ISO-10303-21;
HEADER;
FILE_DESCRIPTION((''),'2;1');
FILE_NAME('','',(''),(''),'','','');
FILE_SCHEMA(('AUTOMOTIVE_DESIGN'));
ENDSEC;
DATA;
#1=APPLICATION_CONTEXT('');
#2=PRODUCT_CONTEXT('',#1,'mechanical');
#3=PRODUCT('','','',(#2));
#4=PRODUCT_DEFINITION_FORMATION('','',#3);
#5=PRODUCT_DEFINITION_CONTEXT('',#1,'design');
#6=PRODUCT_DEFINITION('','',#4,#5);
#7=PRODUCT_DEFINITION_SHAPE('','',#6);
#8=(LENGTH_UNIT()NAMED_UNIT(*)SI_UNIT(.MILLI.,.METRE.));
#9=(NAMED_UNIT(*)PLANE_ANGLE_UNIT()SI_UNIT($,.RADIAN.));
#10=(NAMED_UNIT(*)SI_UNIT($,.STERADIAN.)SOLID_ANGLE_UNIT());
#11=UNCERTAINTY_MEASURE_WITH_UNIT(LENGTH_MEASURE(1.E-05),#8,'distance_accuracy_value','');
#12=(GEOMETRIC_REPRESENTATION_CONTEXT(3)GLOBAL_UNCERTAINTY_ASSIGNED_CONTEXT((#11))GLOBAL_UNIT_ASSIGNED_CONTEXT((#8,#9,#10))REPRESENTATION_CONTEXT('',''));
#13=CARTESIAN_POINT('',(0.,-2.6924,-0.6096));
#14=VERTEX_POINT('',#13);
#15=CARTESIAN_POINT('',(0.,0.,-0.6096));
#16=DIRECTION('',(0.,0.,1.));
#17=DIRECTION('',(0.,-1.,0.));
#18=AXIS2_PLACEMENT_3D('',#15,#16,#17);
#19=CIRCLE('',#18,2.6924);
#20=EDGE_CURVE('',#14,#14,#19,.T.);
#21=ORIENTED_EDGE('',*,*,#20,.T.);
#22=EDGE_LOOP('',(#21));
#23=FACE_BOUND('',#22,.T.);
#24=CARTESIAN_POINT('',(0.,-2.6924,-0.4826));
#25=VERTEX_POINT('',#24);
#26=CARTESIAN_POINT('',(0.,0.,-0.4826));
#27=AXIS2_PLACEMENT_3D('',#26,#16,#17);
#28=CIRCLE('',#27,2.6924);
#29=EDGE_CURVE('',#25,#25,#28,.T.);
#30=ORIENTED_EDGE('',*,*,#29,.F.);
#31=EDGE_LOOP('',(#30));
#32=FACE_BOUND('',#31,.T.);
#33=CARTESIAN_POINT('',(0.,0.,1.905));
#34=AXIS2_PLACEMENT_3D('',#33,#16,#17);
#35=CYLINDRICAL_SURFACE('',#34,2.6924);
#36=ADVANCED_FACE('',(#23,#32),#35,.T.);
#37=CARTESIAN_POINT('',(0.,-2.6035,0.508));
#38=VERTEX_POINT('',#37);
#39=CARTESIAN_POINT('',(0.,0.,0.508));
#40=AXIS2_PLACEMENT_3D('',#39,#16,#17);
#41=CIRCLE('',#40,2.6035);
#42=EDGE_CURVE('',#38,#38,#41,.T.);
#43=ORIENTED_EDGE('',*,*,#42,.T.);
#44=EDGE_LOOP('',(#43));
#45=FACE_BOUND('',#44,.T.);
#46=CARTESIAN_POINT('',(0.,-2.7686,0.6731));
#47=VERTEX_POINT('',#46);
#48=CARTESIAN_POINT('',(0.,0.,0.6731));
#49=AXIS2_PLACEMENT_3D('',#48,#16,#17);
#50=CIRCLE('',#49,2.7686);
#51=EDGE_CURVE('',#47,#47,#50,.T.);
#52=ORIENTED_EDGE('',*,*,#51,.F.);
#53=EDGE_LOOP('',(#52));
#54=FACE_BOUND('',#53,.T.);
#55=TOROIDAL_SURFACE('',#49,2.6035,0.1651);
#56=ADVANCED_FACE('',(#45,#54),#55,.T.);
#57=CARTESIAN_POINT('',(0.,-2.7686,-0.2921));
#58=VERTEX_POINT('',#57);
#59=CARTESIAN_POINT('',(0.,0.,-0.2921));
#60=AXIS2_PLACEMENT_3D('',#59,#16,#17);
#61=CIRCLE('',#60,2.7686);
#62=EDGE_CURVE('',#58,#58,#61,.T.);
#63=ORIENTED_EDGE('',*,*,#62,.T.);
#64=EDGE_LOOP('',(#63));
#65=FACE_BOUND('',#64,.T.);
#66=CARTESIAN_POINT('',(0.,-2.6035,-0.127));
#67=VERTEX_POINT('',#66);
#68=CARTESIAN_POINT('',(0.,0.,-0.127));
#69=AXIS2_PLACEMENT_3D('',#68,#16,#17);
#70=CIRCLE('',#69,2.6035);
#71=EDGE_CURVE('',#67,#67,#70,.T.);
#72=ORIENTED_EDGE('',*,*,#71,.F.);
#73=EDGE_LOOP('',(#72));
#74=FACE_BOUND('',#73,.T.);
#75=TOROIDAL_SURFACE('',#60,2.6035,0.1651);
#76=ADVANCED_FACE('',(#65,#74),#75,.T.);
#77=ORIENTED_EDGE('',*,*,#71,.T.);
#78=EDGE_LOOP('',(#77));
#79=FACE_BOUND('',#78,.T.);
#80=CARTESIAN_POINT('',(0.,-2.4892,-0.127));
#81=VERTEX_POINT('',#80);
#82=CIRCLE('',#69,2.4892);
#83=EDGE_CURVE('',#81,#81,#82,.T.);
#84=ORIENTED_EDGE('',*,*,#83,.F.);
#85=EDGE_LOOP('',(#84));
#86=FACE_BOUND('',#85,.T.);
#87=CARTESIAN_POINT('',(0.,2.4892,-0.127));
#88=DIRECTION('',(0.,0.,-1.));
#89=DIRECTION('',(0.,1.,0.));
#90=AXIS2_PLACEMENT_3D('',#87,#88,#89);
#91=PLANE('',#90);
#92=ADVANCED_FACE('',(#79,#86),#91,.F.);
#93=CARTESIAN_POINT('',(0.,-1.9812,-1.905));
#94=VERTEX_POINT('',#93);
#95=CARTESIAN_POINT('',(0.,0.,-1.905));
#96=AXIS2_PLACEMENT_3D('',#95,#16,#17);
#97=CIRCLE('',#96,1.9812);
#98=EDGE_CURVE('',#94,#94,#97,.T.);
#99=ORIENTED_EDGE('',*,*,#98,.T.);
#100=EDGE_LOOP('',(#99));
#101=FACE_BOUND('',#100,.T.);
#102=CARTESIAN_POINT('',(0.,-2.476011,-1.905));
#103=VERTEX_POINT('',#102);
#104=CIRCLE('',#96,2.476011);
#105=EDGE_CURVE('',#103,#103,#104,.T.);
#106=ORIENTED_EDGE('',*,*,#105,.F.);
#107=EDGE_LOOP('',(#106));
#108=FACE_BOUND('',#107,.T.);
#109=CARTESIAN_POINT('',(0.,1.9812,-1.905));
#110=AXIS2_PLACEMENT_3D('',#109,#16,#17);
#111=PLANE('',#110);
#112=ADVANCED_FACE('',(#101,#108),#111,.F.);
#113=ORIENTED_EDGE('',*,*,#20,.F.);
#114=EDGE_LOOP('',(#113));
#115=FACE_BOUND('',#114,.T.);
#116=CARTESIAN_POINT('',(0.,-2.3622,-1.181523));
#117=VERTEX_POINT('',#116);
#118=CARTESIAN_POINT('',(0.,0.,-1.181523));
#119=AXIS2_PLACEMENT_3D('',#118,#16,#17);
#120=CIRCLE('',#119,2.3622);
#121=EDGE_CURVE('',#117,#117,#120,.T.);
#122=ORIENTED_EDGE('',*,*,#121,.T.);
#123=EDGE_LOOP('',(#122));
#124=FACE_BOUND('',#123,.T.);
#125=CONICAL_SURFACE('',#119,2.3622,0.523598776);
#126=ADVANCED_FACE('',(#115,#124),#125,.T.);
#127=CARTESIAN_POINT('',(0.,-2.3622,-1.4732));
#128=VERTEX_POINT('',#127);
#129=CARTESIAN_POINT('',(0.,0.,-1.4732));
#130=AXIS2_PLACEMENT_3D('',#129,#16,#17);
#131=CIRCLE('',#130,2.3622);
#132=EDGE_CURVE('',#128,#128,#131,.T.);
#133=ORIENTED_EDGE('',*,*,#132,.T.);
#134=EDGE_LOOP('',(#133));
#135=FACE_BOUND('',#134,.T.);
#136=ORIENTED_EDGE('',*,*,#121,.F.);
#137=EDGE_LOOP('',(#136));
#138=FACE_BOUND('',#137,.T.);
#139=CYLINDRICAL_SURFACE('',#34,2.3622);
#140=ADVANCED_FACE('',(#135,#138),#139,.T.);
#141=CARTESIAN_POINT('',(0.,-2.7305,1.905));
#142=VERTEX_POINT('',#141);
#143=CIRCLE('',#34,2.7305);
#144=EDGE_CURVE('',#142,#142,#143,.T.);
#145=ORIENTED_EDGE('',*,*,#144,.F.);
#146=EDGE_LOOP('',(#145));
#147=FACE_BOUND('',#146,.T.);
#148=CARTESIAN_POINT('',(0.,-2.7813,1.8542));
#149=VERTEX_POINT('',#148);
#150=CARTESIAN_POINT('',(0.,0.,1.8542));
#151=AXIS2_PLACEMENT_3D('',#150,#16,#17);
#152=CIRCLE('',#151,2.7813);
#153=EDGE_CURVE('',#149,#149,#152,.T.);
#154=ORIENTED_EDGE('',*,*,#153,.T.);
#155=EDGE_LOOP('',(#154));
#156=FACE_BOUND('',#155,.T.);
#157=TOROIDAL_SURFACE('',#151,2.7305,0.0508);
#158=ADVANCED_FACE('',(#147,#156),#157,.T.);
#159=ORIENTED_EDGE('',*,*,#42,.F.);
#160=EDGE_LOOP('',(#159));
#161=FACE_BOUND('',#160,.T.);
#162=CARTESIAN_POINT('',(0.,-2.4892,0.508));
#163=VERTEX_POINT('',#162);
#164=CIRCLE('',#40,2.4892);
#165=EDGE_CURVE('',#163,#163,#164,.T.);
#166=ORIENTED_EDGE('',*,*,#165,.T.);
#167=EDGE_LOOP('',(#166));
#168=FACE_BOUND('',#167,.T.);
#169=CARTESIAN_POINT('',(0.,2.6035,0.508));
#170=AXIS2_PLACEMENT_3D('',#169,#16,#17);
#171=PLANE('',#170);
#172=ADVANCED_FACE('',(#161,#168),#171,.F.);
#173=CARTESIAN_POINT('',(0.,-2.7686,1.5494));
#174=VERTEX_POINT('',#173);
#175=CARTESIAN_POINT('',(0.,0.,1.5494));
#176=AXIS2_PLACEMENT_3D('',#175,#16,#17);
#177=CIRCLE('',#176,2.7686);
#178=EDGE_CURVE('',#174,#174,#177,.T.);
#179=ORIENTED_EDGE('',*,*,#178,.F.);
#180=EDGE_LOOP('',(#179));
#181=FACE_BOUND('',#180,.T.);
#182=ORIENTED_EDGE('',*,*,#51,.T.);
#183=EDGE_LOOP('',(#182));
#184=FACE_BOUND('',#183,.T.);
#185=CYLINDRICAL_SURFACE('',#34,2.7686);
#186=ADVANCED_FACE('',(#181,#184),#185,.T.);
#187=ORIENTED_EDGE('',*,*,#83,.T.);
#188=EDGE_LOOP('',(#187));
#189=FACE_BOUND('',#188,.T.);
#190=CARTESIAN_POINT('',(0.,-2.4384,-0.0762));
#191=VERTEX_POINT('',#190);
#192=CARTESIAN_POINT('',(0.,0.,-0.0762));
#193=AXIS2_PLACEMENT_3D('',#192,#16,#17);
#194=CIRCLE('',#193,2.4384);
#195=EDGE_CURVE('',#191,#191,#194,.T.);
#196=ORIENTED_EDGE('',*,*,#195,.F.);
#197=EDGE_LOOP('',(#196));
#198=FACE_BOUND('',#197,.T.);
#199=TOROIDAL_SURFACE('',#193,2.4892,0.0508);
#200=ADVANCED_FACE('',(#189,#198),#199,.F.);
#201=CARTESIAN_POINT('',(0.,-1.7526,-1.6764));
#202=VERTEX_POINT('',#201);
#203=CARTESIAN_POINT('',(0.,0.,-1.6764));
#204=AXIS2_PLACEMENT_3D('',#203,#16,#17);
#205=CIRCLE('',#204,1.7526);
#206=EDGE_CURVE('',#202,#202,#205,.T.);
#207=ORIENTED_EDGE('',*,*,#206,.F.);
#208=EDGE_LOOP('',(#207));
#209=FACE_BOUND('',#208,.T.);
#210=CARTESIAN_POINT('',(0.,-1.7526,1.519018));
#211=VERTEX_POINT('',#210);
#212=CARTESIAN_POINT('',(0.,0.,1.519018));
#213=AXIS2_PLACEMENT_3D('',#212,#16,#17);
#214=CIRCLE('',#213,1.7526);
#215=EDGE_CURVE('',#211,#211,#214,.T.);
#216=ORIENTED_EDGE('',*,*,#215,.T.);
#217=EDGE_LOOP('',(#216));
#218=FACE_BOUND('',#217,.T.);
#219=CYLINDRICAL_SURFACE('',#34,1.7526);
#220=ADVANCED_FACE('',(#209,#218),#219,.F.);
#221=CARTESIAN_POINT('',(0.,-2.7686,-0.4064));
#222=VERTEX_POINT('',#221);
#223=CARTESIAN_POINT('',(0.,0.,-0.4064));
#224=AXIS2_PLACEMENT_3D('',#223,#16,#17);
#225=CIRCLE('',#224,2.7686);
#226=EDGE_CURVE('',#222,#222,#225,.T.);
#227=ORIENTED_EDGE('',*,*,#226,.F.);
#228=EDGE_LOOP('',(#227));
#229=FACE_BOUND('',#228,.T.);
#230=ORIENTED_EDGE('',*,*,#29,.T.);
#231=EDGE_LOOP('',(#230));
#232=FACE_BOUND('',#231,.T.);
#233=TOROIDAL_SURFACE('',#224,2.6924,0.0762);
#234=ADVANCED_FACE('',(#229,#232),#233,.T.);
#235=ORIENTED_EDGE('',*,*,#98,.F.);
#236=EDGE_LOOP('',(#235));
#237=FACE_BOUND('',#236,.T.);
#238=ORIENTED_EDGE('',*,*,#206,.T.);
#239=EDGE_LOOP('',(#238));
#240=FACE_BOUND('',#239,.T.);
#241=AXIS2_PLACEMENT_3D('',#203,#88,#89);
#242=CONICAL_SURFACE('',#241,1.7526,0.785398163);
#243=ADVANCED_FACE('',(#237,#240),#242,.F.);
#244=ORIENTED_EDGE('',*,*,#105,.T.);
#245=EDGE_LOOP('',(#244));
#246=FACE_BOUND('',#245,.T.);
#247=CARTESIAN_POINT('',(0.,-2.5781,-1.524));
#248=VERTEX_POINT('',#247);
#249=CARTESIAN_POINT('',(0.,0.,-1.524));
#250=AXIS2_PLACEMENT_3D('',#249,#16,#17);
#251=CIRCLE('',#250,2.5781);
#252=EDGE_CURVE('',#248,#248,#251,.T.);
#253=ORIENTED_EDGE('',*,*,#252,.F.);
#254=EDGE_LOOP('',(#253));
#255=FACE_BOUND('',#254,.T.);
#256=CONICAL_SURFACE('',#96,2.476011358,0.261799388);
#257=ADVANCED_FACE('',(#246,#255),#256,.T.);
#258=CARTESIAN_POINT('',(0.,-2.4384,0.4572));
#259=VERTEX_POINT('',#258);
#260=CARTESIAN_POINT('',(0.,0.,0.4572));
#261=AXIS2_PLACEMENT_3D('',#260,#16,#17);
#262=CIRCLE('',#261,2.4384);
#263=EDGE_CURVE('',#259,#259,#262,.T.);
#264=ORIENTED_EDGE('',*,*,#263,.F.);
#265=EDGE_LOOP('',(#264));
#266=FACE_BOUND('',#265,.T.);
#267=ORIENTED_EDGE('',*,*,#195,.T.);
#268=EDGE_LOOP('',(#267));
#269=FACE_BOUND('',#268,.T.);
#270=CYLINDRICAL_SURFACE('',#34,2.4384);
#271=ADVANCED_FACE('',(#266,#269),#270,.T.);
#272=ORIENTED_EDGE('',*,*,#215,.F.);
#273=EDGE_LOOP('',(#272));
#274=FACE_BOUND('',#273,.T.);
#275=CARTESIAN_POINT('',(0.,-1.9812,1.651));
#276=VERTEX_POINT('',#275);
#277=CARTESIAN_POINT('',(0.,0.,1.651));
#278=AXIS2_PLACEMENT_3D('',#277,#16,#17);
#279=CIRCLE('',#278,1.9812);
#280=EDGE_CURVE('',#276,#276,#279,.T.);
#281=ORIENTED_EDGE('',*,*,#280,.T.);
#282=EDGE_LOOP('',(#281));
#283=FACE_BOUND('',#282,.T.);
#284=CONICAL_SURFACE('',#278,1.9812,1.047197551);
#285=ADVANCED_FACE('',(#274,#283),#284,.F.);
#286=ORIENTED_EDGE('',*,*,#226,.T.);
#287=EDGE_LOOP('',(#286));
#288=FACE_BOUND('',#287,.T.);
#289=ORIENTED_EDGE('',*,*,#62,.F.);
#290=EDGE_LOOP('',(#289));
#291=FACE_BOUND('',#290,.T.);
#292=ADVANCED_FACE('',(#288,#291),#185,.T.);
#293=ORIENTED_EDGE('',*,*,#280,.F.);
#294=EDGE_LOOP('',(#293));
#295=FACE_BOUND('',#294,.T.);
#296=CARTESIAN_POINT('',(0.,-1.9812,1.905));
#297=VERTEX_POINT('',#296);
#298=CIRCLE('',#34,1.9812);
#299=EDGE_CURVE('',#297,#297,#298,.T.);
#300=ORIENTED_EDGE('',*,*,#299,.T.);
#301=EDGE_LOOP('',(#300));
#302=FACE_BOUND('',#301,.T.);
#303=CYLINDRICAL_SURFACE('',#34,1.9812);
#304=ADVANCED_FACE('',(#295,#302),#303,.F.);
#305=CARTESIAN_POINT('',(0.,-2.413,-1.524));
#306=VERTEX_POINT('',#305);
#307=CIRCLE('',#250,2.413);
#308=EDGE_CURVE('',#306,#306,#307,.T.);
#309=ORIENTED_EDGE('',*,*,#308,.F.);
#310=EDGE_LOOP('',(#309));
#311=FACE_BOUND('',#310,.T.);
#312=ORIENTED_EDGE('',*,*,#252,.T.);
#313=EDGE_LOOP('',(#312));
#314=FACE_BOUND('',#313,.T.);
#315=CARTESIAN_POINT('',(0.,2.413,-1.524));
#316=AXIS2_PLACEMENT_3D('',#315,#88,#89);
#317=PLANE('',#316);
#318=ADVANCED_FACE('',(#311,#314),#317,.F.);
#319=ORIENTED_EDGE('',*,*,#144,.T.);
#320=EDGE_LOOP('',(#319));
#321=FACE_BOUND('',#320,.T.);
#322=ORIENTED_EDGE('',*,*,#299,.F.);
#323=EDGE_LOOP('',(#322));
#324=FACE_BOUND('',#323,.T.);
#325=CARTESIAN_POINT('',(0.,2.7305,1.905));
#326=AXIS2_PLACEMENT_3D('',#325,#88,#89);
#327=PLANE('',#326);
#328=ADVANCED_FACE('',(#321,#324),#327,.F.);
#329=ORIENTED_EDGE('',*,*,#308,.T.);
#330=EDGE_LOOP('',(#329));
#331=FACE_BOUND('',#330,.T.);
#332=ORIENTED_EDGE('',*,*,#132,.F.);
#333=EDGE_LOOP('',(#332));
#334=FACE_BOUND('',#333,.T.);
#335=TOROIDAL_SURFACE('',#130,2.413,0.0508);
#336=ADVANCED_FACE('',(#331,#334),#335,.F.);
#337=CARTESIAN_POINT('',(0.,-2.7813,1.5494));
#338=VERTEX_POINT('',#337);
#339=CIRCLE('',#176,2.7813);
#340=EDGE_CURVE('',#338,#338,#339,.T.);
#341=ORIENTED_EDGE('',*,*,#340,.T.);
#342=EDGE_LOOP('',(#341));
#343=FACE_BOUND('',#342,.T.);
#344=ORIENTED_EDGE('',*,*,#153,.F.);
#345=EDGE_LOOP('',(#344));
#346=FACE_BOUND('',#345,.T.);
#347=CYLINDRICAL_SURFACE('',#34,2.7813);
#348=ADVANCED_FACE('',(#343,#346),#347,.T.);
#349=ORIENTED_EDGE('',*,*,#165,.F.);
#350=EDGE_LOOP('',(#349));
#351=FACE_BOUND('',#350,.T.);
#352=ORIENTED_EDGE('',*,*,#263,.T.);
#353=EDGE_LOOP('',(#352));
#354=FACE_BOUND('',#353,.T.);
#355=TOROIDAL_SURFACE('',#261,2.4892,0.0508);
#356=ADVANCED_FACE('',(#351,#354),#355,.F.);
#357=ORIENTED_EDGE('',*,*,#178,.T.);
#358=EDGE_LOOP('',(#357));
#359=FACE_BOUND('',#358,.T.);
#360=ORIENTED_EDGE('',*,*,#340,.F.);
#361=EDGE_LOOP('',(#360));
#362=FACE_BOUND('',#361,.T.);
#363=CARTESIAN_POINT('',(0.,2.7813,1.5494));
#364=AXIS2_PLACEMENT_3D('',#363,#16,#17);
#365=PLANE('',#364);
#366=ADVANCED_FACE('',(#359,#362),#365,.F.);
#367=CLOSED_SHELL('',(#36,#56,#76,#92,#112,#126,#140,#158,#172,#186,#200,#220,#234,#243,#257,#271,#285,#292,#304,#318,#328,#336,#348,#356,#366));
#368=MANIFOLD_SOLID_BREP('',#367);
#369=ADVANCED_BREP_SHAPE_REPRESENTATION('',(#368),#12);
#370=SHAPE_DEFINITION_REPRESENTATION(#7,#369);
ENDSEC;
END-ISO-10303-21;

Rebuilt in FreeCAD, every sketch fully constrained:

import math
import FreeCAD as App
import Part
import Sketcher
from FreeCAD import Vector
Q = App.Units.Quantity

doc = App.newDocument("Part")
params = doc.addObject("Spreadsheet::Sheet", "Params")
for row, (alias, value) in enumerate([
    ("sketch1_radius", "0.003 in"),
    ("sketch1_radius2", "0.002 in"),
    ("sketch1_height", "0.01 in"),
    ("sketch1_height2", "0.005 in"),
    ("sketch1_height3", "0.021 in"),
    ("revolution_angle", "360 deg"),
], start=1):
    params.set(f"A{row}", alias)
    params.set(f"B{row}", "=" + value)
    params.setAlias(f"B{row}", alias)

body = doc.addObject("PartDesign::Body", "Body")

# Sketch on YZ plane
sketch1 = body.newObject("Sketcher::SketchObject", "Sketch")
sketch1.AttachmentSupport = (doc.getObject("YZ_Plane"), [""])
sketch1.MapMode = "FlatFace"
sketch1.addGeometry([
    Part.LineSegment(Vector(2.3622, -1.181523, 0), Vector(2.6924, -0.6096, 0)),  # 0
    Part.LineSegment(Vector(2.6924, -0.6096, 0), Vector(2.6924, -0.4826, 0)),  # 1
    Part.ArcOfCircle(Part.Circle(Vector(2.6924, -0.4064, 0), Vector(0, 0, 1), 0.0762), math.radians(-90.000001), math.radians(0.000001)),  # 2
    Part.LineSegment(Vector(2.7686, -0.4064, 0), Vector(2.7686, -0.2921, 0)),  # 3
    Part.ArcOfCircle(Part.Circle(Vector(2.6035, -0.2921, 0), Vector(0, 0, 1), 0.1651), math.radians(0), math.radians(90)),  # 4
    Part.LineSegment(Vector(2.6035, -0.127, 0), Vector(2.4892, -0.127, 0)),  # 5
    Part.ArcOfCircle(Part.Circle(Vector(2.4892, -0.0762, 0), Vector(0, 0, 1), 0.0508), math.radians(-179.999998), math.radians(-90.000002)),  # 6
    Part.LineSegment(Vector(2.4384, -0.0762, 0), Vector(2.4384, 0.4572, 0)),  # 7
    Part.ArcOfCircle(Part.Circle(Vector(2.4892, 0.4572, 0), Vector(0, 0, 1), 0.0508), math.radians(90.000002), math.radians(179.999998)),  # 8
    Part.LineSegment(Vector(2.4892, 0.508, 0), Vector(2.6035, 0.508, 0)),  # 9
    Part.ArcOfCircle(Part.Circle(Vector(2.6035, 0.6731, 0), Vector(0, 0, 1), 0.1651), math.radians(-90), math.radians(0)),  # 10
    Part.LineSegment(Vector(2.7686, 0.6731, 0), Vector(2.7686, 1.5494, 0)),  # 11
    Part.LineSegment(Vector(2.7686, 1.5494, 0), Vector(2.7813, 1.5494, 0)),  # 12
    Part.LineSegment(Vector(2.7813, 1.5494, 0), Vector(2.7813, 1.8542, 0)),  # 13
    Part.ArcOfCircle(Part.Circle(Vector(2.7305, 1.8542, 0), Vector(0, 0, 1), 0.0508), math.radians(0.000002), math.radians(89.999998)),  # 14
    Part.LineSegment(Vector(2.7305, 1.905, 0), Vector(1.9812, 1.905, 0)),  # 15
    Part.LineSegment(Vector(1.9812, 1.905, 0), Vector(1.9812, 1.651, 0)),  # 16
    Part.LineSegment(Vector(1.9812, 1.651, 0), Vector(1.7526, 1.519018, 0)),  # 17
    Part.LineSegment(Vector(1.7526, 1.519018, 0), Vector(1.7526, -1.6764, 0)),  # 18
    Part.LineSegment(Vector(1.7526, -1.6764, 0), Vector(1.9812, -1.905, 0)),  # 19
    Part.LineSegment(Vector(1.9812, -1.905, 0), Vector(2.476011, -1.905, 0)),  # 20
    Part.LineSegment(Vector(2.476011, -1.905, 0), Vector(2.5781, -1.524, 0)),  # 21
    Part.LineSegment(Vector(2.5781, -1.524, 0), Vector(2.413, -1.524, 0)),  # 22
    Part.ArcOfCircle(Part.Circle(Vector(2.413, -1.4732, 0), Vector(0, 0, 1), 0.0508), math.radians(-179.999998), math.radians(-90.000002)),  # 23
    Part.LineSegment(Vector(2.3622, -1.4732, 0), Vector(2.3622, -1.181523, 0)),  # 24
], False)
sketch1.addConstraint([
    Sketcher.Constraint("Coincident", 0, 2, 1, 1),
    Sketcher.Constraint("Coincident", 1, 2, 2, 1),
    Sketcher.Constraint("Tangent", 2, 2, 3, 1),
    Sketcher.Constraint("Tangent", 3, 2, 4, 1),
    Sketcher.Constraint("Tangent", 4, 2, 5, 1),
    Sketcher.Constraint("Tangent", 5, 2, 6, 2),
    Sketcher.Constraint("Tangent", 6, 1, 7, 1),
    Sketcher.Constraint("Tangent", 7, 2, 8, 2),
    Sketcher.Constraint("Tangent", 8, 1, 9, 1),
    Sketcher.Constraint("Tangent", 9, 2, 10, 1),
    Sketcher.Constraint("Tangent", 10, 2, 11, 1),
    Sketcher.Constraint("Coincident", 11, 2, 12, 1),
    Sketcher.Constraint("Coincident", 12, 2, 13, 1),
    Sketcher.Constraint("Tangent", 13, 2, 14, 1),
    Sketcher.Constraint("Tangent", 14, 2, 15, 1),
    Sketcher.Constraint("Coincident", 15, 2, 16, 1),
    Sketcher.Constraint("Coincident", 16, 2, 17, 1),
    Sketcher.Constraint("Coincident", 17, 2, 18, 1),
    Sketcher.Constraint("Coincident", 18, 2, 19, 1),
    Sketcher.Constraint("Coincident", 19, 2, 20, 1),
    Sketcher.Constraint("Coincident", 20, 2, 21, 1),
    Sketcher.Constraint("Coincident", 21, 2, 22, 1),
    Sketcher.Constraint("Tangent", 22, 2, 23, 2),
    Sketcher.Constraint("Tangent", 23, 1, 24, 1),
    Sketcher.Constraint("Coincident", 24, 2, 0, 1),
    Sketcher.Constraint("Vertical", 1),
    Sketcher.Constraint("Vertical", 3),
    Sketcher.Constraint("Horizontal", 5),
    Sketcher.Constraint("Vertical", 7),
    Sketcher.Constraint("Horizontal", 9),
    Sketcher.Constraint("Vertical", 11),
    Sketcher.Constraint("Horizontal", 12),
    Sketcher.Constraint("Vertical", 13),
    Sketcher.Constraint("Horizontal", 15),
    Sketcher.Constraint("Vertical", 16),
    Sketcher.Constraint("Vertical", 18),
    Sketcher.Constraint("Horizontal", 20),
    Sketcher.Constraint("Horizontal", 22),
    Sketcher.Constraint("Vertical", 24),
    Sketcher.Constraint("Equal", 6, 8),
    Sketcher.Constraint("Equal", 4, 10),
    Sketcher.Constraint("Equal", 8, 14),
    Sketcher.Constraint("Equal", 14, 23),
    Sketcher.Constraint("Symmetric", 15, 2, 19, 2, -1),
    Sketcher.Constraint("Vertical", 4, 3, 10, 3),
    Sketcher.Constraint("Vertical", 2, 3, 0, 2),
    Sketcher.Constraint("Equal", 9, 3),
    Sketcher.Constraint("Angle", 0, Q("60 deg")),
    Sketcher.Constraint("Angle", 17, Q("-150 deg")),
    Sketcher.Constraint("Angle", 19, Q("-45 deg")),
    Sketcher.Constraint("Angle", 21, Q("75 deg")),
    Sketcher.Constraint("Radius", 2, Q("0.003 in")),
    Sketcher.Constraint("Radius", 6, Q("0.002 in")),
    Sketcher.Constraint("DistanceY", 16, 2, 16, 1, Q("0.01 in")),
    Sketcher.Constraint("Radius", 4, Q("0.0065 in")),
    Sketcher.Constraint("DistanceY", 1, 1, 1, 2, Q("0.005 in")),
    Sketcher.Constraint("DistanceY", 7, 1, 7, 2, Q("0.021 in")),
    Sketcher.Constraint("DistanceY", 13, 1, 13, 2, Q("0.012 in")),
    Sketcher.Constraint("DistanceY", -1, 1, 8, 1, Q("0.02 in")),
    Sketcher.Constraint("DistanceY", 21, 2, -1, 1, Q("0.06 in")),
    Sketcher.Constraint("DistanceX", 17, 2, 11, 2, Q("0.04 in")),
    Sketcher.Constraint("DistanceY", 18, 2, 2, 3, Q("0.05 in")),
    Sketcher.Constraint("Distance", 0, Q("0.026 in")),
    Sketcher.Constraint("DistanceX", 5, 2, 5, 1, Q("0.0045 in")),
    Sketcher.Constraint("DistanceX", 12, 1, 12, 2, Q("0.0005 in")),
    Sketcher.Constraint("DistanceX", 15, 2, 15, 1, Q("0.0295 in")),
    Sketcher.Constraint("DistanceX", 22, 2, 22, 1, Q("0.0065 in")),
    Sketcher.Constraint("DistanceX", -1, 1, 2, 3, Q("0.106 in")),
])
sketch1.setExpression("Constraints[51]", "Params.sketch1_radius")
sketch1.setExpression("Constraints[52]", "Params.sketch1_radius2")
sketch1.setExpression("Constraints[53]", "Params.sketch1_height")
sketch1.setExpression("Constraints[55]", "Params.sketch1_height2")
sketch1.setExpression("Constraints[56]", "Params.sketch1_height3")
revolution = body.newObject("PartDesign::Revolution", "Revolution")
revolution.Profile = sketch1
revolution.ReferenceAxis = (sketch1, ["V_Axis"])
revolution.setExpression("Angle", "Params.revolution_angle")

doc.recompute()
